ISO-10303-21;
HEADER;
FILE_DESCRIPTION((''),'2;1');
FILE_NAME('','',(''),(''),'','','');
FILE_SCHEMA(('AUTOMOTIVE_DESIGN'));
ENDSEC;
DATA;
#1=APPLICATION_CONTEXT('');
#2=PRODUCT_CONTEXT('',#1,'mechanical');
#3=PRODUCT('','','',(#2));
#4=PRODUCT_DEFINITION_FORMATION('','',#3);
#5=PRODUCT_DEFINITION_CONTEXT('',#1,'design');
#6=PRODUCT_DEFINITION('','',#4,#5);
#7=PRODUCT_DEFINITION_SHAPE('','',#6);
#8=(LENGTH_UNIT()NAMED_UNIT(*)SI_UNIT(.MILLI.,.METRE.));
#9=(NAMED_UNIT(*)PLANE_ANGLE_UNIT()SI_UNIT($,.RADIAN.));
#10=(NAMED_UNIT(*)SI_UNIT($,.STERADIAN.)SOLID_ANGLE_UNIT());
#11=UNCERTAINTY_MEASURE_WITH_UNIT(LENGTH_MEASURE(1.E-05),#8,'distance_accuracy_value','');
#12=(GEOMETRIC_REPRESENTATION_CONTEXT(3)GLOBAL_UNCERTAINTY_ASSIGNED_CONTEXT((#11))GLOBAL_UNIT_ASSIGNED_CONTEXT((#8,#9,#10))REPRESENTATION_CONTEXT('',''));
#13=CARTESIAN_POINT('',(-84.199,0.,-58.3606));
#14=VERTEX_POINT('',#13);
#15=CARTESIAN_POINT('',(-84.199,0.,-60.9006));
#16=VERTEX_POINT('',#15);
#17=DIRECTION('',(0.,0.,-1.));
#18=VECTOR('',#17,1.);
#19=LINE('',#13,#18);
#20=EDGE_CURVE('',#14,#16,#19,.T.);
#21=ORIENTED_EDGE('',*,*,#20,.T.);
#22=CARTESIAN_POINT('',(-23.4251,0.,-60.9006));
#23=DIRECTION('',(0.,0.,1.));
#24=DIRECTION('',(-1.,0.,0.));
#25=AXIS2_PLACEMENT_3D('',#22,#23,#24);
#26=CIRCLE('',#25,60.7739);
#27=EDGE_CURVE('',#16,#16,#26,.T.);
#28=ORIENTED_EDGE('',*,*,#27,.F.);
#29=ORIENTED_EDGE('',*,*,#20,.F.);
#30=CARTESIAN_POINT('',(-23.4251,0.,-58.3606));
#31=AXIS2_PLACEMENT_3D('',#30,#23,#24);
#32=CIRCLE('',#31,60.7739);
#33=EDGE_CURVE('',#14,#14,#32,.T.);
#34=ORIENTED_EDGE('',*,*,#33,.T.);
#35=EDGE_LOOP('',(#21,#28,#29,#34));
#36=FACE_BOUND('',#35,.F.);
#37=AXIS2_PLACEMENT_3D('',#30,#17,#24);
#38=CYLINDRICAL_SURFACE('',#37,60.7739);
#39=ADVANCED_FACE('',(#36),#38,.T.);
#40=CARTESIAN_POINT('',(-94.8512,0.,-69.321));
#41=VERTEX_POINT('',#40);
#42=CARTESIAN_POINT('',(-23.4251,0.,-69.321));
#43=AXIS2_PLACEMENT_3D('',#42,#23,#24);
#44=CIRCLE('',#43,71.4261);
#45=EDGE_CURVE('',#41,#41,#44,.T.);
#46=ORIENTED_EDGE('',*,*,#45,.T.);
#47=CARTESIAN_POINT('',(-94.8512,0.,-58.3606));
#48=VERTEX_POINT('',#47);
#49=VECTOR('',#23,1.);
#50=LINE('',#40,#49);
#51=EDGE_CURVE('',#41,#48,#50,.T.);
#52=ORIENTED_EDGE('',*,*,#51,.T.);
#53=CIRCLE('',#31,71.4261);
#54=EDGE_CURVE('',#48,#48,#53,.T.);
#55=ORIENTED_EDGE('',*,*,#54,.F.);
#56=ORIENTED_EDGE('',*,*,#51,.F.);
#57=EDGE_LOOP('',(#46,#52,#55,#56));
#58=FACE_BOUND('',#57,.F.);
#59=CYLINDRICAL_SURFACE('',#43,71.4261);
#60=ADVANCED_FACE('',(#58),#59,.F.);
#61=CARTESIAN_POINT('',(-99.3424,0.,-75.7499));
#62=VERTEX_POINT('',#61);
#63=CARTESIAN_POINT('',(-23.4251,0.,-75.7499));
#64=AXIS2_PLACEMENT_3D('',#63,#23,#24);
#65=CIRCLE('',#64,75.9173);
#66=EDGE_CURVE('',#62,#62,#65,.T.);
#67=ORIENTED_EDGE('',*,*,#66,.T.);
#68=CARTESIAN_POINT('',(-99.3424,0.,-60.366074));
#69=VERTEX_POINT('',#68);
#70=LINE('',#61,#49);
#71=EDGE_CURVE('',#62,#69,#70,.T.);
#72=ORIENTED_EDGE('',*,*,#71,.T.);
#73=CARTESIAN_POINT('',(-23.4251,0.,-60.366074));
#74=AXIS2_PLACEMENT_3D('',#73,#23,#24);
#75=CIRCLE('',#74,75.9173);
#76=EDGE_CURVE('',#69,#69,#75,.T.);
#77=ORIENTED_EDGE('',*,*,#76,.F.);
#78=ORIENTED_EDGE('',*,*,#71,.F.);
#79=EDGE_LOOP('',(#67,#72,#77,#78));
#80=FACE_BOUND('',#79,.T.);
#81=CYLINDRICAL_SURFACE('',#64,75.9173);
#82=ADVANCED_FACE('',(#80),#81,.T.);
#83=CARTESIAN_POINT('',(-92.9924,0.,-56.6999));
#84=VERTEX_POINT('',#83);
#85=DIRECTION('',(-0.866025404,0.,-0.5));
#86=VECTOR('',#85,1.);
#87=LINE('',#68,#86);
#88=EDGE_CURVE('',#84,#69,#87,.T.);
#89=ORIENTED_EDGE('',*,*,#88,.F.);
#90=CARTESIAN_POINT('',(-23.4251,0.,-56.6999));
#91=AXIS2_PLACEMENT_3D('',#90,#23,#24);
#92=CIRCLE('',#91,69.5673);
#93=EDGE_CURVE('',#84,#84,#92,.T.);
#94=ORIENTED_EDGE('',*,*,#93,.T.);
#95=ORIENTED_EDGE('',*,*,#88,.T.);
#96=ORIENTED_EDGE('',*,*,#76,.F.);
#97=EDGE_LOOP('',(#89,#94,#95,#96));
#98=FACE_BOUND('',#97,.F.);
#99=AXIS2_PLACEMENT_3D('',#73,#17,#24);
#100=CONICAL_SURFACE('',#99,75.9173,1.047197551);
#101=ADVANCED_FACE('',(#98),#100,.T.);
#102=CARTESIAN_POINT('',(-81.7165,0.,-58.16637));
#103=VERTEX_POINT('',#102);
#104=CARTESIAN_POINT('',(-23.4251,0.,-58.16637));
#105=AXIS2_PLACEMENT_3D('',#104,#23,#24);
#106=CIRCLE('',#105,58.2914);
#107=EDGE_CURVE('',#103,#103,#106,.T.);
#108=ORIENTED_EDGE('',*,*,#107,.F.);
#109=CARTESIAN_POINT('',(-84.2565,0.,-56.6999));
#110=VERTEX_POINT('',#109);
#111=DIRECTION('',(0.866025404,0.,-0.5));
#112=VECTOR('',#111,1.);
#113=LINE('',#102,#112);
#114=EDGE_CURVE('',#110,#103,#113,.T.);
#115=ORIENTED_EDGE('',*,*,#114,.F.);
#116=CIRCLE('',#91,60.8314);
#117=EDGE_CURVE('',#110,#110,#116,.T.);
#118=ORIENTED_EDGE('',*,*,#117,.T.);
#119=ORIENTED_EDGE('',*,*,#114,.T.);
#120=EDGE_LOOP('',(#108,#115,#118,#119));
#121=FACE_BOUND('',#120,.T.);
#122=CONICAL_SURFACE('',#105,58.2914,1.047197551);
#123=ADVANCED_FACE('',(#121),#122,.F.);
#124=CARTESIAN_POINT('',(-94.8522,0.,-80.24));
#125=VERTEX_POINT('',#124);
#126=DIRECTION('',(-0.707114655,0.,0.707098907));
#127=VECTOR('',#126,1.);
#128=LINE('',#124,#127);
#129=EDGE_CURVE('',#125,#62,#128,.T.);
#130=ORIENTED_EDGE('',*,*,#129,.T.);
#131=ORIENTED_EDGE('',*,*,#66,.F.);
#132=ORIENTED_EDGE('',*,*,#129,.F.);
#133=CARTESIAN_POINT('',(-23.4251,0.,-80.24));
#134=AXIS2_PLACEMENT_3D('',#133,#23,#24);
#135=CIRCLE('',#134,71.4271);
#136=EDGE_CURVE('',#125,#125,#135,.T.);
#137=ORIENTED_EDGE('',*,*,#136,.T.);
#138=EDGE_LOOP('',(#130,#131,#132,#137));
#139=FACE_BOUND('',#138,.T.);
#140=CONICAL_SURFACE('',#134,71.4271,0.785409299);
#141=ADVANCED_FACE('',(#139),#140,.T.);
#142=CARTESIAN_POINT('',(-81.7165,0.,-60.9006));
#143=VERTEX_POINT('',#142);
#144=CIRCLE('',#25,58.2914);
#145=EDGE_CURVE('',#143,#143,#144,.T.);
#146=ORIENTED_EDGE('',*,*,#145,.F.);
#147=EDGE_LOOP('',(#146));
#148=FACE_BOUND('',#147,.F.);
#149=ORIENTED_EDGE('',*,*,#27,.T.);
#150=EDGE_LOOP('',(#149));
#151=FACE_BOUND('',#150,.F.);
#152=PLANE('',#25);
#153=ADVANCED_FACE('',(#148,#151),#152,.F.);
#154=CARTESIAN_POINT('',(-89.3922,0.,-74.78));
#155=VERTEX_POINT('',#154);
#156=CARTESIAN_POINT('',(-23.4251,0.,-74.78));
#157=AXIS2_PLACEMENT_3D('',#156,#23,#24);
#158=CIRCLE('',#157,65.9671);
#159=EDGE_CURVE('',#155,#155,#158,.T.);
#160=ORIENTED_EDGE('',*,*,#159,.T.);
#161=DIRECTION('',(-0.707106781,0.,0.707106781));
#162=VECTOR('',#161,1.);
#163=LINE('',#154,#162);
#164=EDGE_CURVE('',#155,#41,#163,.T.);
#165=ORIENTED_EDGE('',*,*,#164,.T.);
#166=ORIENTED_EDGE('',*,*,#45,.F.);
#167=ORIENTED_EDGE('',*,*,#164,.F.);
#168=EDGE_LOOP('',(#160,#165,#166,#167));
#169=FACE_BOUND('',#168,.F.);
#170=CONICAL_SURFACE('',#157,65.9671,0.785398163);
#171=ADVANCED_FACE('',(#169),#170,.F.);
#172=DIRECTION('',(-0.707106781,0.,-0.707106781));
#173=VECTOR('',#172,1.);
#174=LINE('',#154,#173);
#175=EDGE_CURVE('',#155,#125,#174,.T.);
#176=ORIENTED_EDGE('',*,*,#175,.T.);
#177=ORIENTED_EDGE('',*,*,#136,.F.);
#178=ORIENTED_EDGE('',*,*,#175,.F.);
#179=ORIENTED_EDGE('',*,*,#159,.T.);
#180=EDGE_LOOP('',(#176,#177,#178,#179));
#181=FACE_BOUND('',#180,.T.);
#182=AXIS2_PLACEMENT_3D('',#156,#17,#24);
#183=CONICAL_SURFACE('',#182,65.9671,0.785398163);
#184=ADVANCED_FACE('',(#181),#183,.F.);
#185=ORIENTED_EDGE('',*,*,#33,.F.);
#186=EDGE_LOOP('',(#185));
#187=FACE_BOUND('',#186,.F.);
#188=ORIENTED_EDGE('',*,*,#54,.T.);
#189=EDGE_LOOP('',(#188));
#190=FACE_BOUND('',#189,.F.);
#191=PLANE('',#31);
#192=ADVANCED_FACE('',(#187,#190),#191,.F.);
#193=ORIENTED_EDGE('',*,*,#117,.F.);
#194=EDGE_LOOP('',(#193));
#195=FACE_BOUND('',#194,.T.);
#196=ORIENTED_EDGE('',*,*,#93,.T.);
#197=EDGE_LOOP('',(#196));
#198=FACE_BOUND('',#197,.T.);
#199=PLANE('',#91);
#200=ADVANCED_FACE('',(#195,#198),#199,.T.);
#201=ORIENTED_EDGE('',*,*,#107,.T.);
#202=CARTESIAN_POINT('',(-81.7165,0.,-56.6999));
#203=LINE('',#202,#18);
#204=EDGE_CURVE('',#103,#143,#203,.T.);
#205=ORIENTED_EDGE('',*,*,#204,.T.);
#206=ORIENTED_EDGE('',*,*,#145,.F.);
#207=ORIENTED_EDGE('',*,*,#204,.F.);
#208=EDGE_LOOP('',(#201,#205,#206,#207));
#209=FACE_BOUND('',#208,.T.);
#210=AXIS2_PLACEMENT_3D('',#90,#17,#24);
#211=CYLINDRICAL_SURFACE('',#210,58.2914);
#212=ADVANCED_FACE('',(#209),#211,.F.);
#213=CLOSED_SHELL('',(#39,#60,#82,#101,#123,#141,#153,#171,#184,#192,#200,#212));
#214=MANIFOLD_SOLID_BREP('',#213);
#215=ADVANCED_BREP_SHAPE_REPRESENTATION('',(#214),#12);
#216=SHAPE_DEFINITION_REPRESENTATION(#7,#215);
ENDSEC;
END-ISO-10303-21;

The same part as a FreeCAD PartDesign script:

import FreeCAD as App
import Part
import Sketcher
from FreeCAD import Vector
Q = App.Units.Quantity


def edges_at(feature, points):
    """Names of the edges that pass closest to the given points."""
    edges = feature.Shape.Edges
    near = lambda p: min(range(len(edges)), key=lambda i: edges[i].distToShape(Part.Vertex(*p))[0])
    return sorted({f"Edge{near(p) + 1}" for p in points})

doc = App.newDocument("Part")
body = doc.addObject("PartDesign::Body", "Body")

# Sketch on XZ plane
sketch1 = body.newObject("Sketcher::SketchObject", "Sketch")
sketch1.AttachmentSupport = (doc.getObject("XZ_Plane"), [""])
sketch1.MapMode = "FlatFace"
sketch1.addGeometry(Part.LineSegment(Vector(-81.7, -56.7, 0), Vector(-99.3, -56.7, 0)), False)
sketch1.addGeometry(Part.LineSegment(Vector(-99.3, -56.7, 0), Vector(-99.3, -75.7, 0)), False)
sketch1.addGeometry(Part.LineSegment(Vector(-99.3, -75.7, 0), Vector(-94.9, -80.2, 0)), False)
sketch1.addGeometry(Part.LineSegment(Vector(-94.9, -80.2, 0), Vector(-89.4, -74.8, 0)), False)
sketch1.addGeometry(Part.LineSegment(Vector(-89.4, -74.8, 0), Vector(-94.9, -69.3, 0)), False)
sketch1.addGeometry(Part.LineSegment(Vector(-94.9, -69.3, 0), Vector(-94.9, -58.4, 0)), False)
sketch1.addGeometry(Part.LineSegment(Vector(-94.9, -58.4, 0), Vector(-84.2, -58.4, 0)), False)
sketch1.addGeometry(Part.LineSegment(Vector(-84.2, -58.4, 0), Vector(-84.2, -60.9, 0)), False)
sketch1.addGeometry(Part.LineSegment(Vector(-84.2, -60.9, 0), Vector(-81.7, -60.9, 0)), False)
sketch1.addGeometry(Part.LineSegment(Vector(-81.7, -60.9, 0), Vector(-81.7, -56.7, 0)), False)
sketch1.addGeometry(Part.LineSegment(Vector(-23.4, -80.2, 0), Vector(-23.4, -56.7, 0)), True)  # axis
sketch1.addConstraint(Sketcher.Constraint("Coincident", 0, 2, 1, 1))
sketch1.addConstraint(Sketcher.Constraint("Coincident", 1, 2, 2, 1))
sketch1.addConstraint(Sketcher.Constraint("Coincident", 2, 2, 3, 1))
sketch1.addConstraint(Sketcher.Constraint("Coincident", 3, 2, 4, 1))
sketch1.addConstraint(Sketcher.Constraint("Coincident", 4, 2, 5, 1))
sketch1.addConstraint(Sketcher.Constraint("Coincident", 5, 2, 6, 1))
sketch1.addConstraint(Sketcher.Constraint("Coincident", 6, 2, 7, 1))
sketch1.addConstraint(Sketcher.Constraint("Coincident", 7, 2, 8, 1))
sketch1.addConstraint(Sketcher.Constraint("Coincident", 8, 2, 9, 1))
sketch1.addConstraint(Sketcher.Constraint("Coincident", 9, 2, 0, 1))
sketch1.addConstraint(Sketcher.Constraint("Horizontal", 0))
sketch1.addConstraint(Sketcher.Constraint("Vertical", 1))
sketch1.addConstraint(Sketcher.Constraint("Vertical", 5))
sketch1.addConstraint(Sketcher.Constraint("Horizontal", 6))
sketch1.addConstraint(Sketcher.Constraint("Vertical", 7))
sketch1.addConstraint(Sketcher.Constraint("Horizontal", 8))
sketch1.addConstraint(Sketcher.Constraint("Vertical", 9))
sketch1.addConstraint(Sketcher.Constraint("Vertical", 10))
sketch1.addConstraint(Sketcher.Constraint("Perpendicular", 2, 3))
sketch1.addConstraint(Sketcher.Constraint("Perpendicular", 3, 4))
sketch1.addConstraint(Sketcher.Constraint("Horizontal", 2, 2, 10, 1))
sketch1.addConstraint(Sketcher.Constraint("Horizontal", 9, 2, 10, 2))
sketch1.addConstraint(Sketcher.Constraint("DistanceY", 7, 2, 7, 1, Q("0.1 in")))
sketch1.addConstraint(Sketcher.Constraint("Angle", 2, Q("-44.9994 deg")))
sketch1.addConstraint(Sketcher.Constraint("DistanceY", 1, 2, 1, 1, Q("0.75 in")))
sketch1.addConstraint(Sketcher.Constraint("Distance", 2, Q("0.25 in")))
sketch1.addConstraint(Sketcher.Constraint("Distance", 3, Q("0.304 in")))
sketch1.addConstraint(Sketcher.Constraint("DistanceY", 5, 1, 5, 2, Q("0.4315 in")))
sketch1.addConstraint(Sketcher.Constraint("DistanceX", 0, 2, 0, 1, Q("17.626 mm")))
sketch1.addConstraint(Sketcher.Constraint("DistanceX", 6, 1, 6, 2, Q("10.6522 mm")))
sketch1.addConstraint(Sketcher.Constraint("DistanceX", 8, 1, 8, 2, Q("2.4825 mm")))
sketch1.addConstraint(Sketcher.Constraint("DistanceY", 3, 2, -1, 1, Q("2.9441 in")))
sketch1.addConstraint(Sketcher.Constraint("DistanceX", 4, 2, -1, 1, Q("3.7343 in")))
sketch1.addConstraint(Sketcher.Constraint("DistanceX", 10, 1, -1, 1, Q("23.425 mm")))
revolution = body.newObject("PartDesign::Revolution", "Revolution")
revolution.Profile = sketch1
revolution.ReferenceAxis = (sketch1, ["Axis0"])
revolution.Angle = 360
doc.recompute()

chamfer = body.newObject("PartDesign::Chamfer", "Chamfer")
chamfer.Base = (revolution, edges_at(revolution, [(52.492, 0, -56.7)]))
chamfer.ChamferType = "Distance and Angle"
chamfer.Size = Q("0.25 in")
chamfer.Angle = 30
doc.recompute()

chamfer2 = body.newObject("PartDesign::Chamfer", "Chamfer001")
chamfer2.Base = (chamfer, edges_at(chamfer, [(34.866, 0, -56.7)]))
chamfer2.ChamferType = "Distance and Angle"
chamfer2.Size = Q("0.1 in")
chamfer2.Angle = 30

doc.recompute()
